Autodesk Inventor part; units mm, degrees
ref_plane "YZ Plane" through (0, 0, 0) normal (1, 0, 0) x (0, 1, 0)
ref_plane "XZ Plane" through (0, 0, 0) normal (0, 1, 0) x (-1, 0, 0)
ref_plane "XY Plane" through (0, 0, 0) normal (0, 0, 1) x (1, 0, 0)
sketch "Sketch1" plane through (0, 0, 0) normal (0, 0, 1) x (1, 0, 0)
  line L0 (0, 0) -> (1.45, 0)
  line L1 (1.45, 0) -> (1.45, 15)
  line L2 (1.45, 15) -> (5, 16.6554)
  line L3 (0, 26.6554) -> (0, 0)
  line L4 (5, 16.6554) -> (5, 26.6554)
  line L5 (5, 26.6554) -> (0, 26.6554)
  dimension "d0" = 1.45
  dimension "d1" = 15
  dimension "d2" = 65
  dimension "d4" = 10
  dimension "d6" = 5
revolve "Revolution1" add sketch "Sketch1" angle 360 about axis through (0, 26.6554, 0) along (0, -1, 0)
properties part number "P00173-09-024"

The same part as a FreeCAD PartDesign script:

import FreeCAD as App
import Part
import Sketcher
from FreeCAD import Vector
Q = App.Units.Quantity

doc = App.newDocument("Part")
params = doc.addObject("Spreadsheet::Sheet", "Params")
for row, (alias, value) in enumerate([
    ("sketch1_width", "5 mm"),
    ("sketch1_height", "15 mm"),
    ("sketch1_height2", "10 mm"),
    ("sketch1_width2", "1.45 mm"),
    ("revolution_angle", "360 deg"),
], start=1):
    params.set(f"A{row}", alias)
    params.set(f"B{row}", "=" + value)
    params.setAlias(f"B{row}", alias)

body = doc.addObject("PartDesign::Body", "Body")

# Sketch on XY plane
sketch1 = body.newObject("Sketcher::SketchObject", "Sketch")
sketch1.AttachmentSupport = (doc.getObject("XY_Plane"), [""])
sketch1.MapMode = "FlatFace"
sketch1.addGeometry(Part.LineSegment(Vector(0, 26.7, 0), Vector(0, 0, 0)), False)
sketch1.addGeometry(Part.LineSegment(Vector(0, 0, 0), Vector(1.4, 0, 0)), False)
sketch1.addGeometry(Part.LineSegment(Vector(1.4, 0, 0), Vector(1.4, 15, 0)), False)
sketch1.addGeometry(Part.LineSegment(Vector(1.4, 15, 0), Vector(5, 16.7, 0)), False)
sketch1.addGeometry(Part.LineSegment(Vector(5, 16.7, 0), Vector(5, 26.7, 0)), False)
sketch1.addGeometry(Part.LineSegment(Vector(5, 26.7, 0), Vector(0, 26.7, 0)), False)
sketch1.addConstraint(Sketcher.Constraint("Coincident", 0, 2, 1, 1))
sketch1.addConstraint(Sketcher.Constraint("Coincident", 1, 2, 2, 1))
sketch1.addConstraint(Sketcher.Constraint("Coincident", 2, 2, 3, 1))
sketch1.addConstraint(Sketcher.Constraint("Coincident", 3, 2, 4, 1))
sketch1.addConstraint(Sketcher.Constraint("Coincident", 4, 2, 5, 1))
sketch1.addConstraint(Sketcher.Constraint("Coincident", 5, 2, 0, 1))
sketch1.addConstraint(Sketcher.Constraint("Vertical", 0))
sketch1.addConstraint(Sketcher.Constraint("Horizontal", 1))
sketch1.addConstraint(Sketcher.Constraint("Vertical", 2))
sketch1.addConstraint(Sketcher.Constraint("Vertical", 4))
sketch1.addConstraint(Sketcher.Constraint("Horizontal", 5))
sketch1.addConstraint(Sketcher.Constraint("Coincident", 0, 2, -1, 1))
sketch1.addConstraint(Sketcher.Constraint("DistanceX", 5, 2, 5, 1, Q("5 mm")))
sketch1.addConstraint(Sketcher.Constraint("DistanceY", 2, 1, 2, 2, Q("15 mm")))
sketch1.addConstraint(Sketcher.Constraint("DistanceY", 4, 1, 4, 2, Q("10 mm")))
sketch1.addConstraint(Sketcher.Constraint("DistanceX", 1, 1, 1, 2, Q("1.45 mm")))
sketch1.addConstraint(Sketcher.Constraint("Angle", 3, Q("25 deg")))
sketch1.setExpression("Constraints[12]", "Params.sketch1_width")
sketch1.setExpression("Constraints[13]", "Params.sketch1_height")
sketch1.setExpression("Constraints[14]", "Params.sketch1_height2")
sketch1.setExpression("Constraints[15]", "Params.sketch1_width2")
revolution = body.newObject("PartDesign::Revolution", "Revolution")
revolution.Profile = sketch1
revolution.ReferenceAxis = (sketch1, ["V_Axis"])
revolution.setExpression("Angle", "Params.revolution_angle")

doc.recompute()
